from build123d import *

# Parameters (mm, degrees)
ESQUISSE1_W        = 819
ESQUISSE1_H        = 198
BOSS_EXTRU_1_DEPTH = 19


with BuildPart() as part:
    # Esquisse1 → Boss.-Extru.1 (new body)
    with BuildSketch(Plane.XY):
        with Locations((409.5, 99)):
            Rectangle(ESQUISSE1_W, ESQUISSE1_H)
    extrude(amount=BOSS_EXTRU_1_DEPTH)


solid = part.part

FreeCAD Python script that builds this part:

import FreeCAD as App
import Part
import Sketcher
from FreeCAD import Vector
Q = App.Units.Quantity


def add_polygon(sketch, points):
    """Adds a closed chain of lines whose ends are joined by coincident constraints."""
    first, n = sketch.GeometryCount, len(points)
    for a, b in zip(points, points[1:] + points[:1]):
        sketch.addGeometry(Part.LineSegment(App.Vector(*a, 0), App.Vector(*b, 0)), False)
    for i in range(n):
        sketch.addConstraint(Sketcher.Constraint("Coincident", first + i, 2, first + (i + 1) % n, 1))

doc = App.newDocument("Part")
body = doc.addObject("PartDesign::Body", "Body")

sketch1 = doc.addObject("Sketcher::SketchObject", "Sketch")
body.addObject(sketch1)
sketch1.AttachmentSupport = (doc.XY_Plane, [""])
sketch1.MapMode = "FlatFace"
add_polygon(sketch1, [(0, 198), (0, 0), (819, 0), (819, 198)])
sketch1.addConstraint([
    Sketcher.Constraint("Vertical", 0),
    Sketcher.Constraint("Horizontal", 1),
    Sketcher.Constraint("Vertical", 2),
    Sketcher.Constraint("Horizontal", 3),
    Sketcher.Constraint("Coincident", 0, 2, -1, 1),
    Sketcher.Constraint("DistanceX", 1, 1, 1, 2, Q("819 mm")),
    Sketcher.Constraint("DistanceY", 0, 2, 0, 1, Q("198 mm")),
])
pad1 = doc.addObject("PartDesign::Pad", "Pad")
body.addObject(pad1)
pad1.Profile = sketch1
pad1.Length = 19

doc.recompute()
